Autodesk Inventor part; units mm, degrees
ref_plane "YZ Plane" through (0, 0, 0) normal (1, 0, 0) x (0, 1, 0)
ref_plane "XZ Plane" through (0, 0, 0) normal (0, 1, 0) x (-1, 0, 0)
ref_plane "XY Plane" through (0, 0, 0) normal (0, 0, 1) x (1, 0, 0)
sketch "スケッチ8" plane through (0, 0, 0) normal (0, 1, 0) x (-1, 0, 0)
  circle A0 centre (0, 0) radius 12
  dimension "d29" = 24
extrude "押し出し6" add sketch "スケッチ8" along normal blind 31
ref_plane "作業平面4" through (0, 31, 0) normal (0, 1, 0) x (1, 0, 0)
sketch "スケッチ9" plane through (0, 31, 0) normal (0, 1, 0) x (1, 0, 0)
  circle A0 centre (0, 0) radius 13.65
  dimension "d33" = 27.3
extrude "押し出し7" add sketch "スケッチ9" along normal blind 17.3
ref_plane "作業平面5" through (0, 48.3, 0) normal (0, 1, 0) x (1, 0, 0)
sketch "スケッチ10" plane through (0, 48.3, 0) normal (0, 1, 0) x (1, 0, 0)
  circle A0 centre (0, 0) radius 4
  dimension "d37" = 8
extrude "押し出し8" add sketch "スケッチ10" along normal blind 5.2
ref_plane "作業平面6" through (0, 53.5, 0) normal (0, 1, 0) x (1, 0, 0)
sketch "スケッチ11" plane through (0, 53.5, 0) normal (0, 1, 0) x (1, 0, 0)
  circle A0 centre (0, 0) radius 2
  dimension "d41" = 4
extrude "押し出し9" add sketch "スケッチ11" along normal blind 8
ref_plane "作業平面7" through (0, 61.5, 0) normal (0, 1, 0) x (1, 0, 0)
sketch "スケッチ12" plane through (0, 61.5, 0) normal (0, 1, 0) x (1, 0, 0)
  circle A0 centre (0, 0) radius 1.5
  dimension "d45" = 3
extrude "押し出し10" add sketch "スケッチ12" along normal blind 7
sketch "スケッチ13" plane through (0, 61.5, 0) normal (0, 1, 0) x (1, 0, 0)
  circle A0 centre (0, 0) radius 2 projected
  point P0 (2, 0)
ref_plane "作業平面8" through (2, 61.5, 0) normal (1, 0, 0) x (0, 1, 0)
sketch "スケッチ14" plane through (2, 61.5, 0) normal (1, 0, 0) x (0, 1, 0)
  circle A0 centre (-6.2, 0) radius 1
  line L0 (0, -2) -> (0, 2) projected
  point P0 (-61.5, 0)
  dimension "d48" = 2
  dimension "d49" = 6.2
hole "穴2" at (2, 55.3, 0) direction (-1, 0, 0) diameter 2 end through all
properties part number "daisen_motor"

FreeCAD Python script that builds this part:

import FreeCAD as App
import Part
import Sketcher

V = App.Vector
Q = App.Units.Quantity

doc = App.newDocument("Part")
params = doc.addObject("Spreadsheet::Sheet", "Params")
for row, (alias, value) in enumerate([
    ("sketch1_diameter", "24 mm"),
    ("pad1_length", "31 mm"),
    ("sketch2_diameter", "27.3 mm"),
    ("pad2_length", "17.3 mm"),
    ("sketch3_diameter", "8 mm"),
    ("pad3_length", "5.2 mm"),
    ("sketch4_diameter", "4 mm"),
    ("pad4_length", "8 mm"),
    ("sketch5_diameter", "3 mm"),
    ("pad5_length", "7 mm"),
    ("sketch6_diameter", "2 mm"),
    ("hole_diameter", "2 mm"),
], start=1):
    params.set(f"A{row}", alias)
    params.set(f"B{row}", "=" + value)
    params.setAlias(f"B{row}", alias)

body = doc.addObject("PartDesign::Body", "Body")

# Sketch on XZ plane
sketch1 = body.newObject("Sketcher::SketchObject", "Sketch")
sketch1.AttachmentSupport = (doc.getObject("XZ_Plane"), [""])
sketch1.MapMode = "FlatFace"
sketch1.addGeometry(Part.Circle(V(0, 0, 0), V(0, 0, 1), 12), False)
sketch1.addConstraint(Sketcher.Constraint("Coincident", 0, 3, -1, 1))
sketch1.addConstraint(Sketcher.Constraint("Diameter", 0, Q("24 mm")))
sketch1.setExpression("Constraints[1]", "Params.sketch1_diameter")
pad1 = body.newObject("PartDesign::Pad", "Pad")
pad1.Profile = sketch1
pad1.setExpression("Length", "Params.pad1_length")
pad1.Reversed = True

# Sketch on XZ plane
sketch2 = body.newObject("Sketcher::SketchObject", "Sketch001")
sketch2.AttachmentSupport = (doc.getObject("XZ_Plane"), [""])
sketch2.MapMode = "FlatFace"
sketch2.AttachmentOffset = App.Placement(V(0, 0, -31), App.Rotation())
sketch2.addGeometry(Part.Circle(V(0, 0, 0), V(0, 0, 1), 14), False)
sketch2.addConstraint(Sketcher.Constraint("Coincident", 0, 3, -1, 1))
sketch2.addConstraint(Sketcher.Constraint("Diameter", 0, Q("27.3 mm")))
sketch2.setExpression("Constraints[1]", "Params.sketch2_diameter")
pad2 = body.newObject("PartDesign::Pad", "Pad001")
pad2.Profile = sketch2
pad2.setExpression("Length", "Params.pad2_length")
pad2.Reversed = True

# Sketch on XZ plane
sketch3 = body.newObject("Sketcher::SketchObject", "Sketch002")
sketch3.AttachmentSupport = (doc.getObject("XZ_Plane"), [""])
sketch3.MapMode = "FlatFace"
sketch3.AttachmentOffset = App.Placement(V(0, 0, -48.3), App.Rotation())
sketch3.addGeometry(Part.Circle(V(0, 0, 0), V(0, 0, 1), 4), False)
sketch3.addConstraint(Sketcher.Constraint("Coincident", 0, 3, -1, 1))
sketch3.addConstraint(Sketcher.Constraint("Diameter", 0, Q("8 mm")))
sketch3.setExpression("Constraints[1]", "Params.sketch3_diameter")
pad3 = body.newObject("PartDesign::Pad", "Pad002")
pad3.Profile = sketch3
pad3.setExpression("Length", "Params.pad3_length")
pad3.Reversed = True

# Sketch on XZ plane
sketch4 = body.newObject("Sketcher::SketchObject", "Sketch003")
sketch4.AttachmentSupport = (doc.getObject("XZ_Plane"), [""])
sketch4.MapMode = "FlatFace"
sketch4.AttachmentOffset = App.Placement(V(0, 0, -53.5), App.Rotation())
sketch4.addGeometry(Part.Circle(V(0, 0, 0), V(0, 0, 1), 2), False)
sketch4.addConstraint(Sketcher.Constraint("Coincident", 0, 3, -1, 1))
sketch4.addConstraint(Sketcher.Constraint("Diameter", 0, Q("4 mm")))
sketch4.setExpression("Constraints[1]", "Params.sketch4_diameter")
pad4 = body.newObject("PartDesign::Pad", "Pad003")
pad4.Profile = sketch4
pad4.setExpression("Length", "Params.pad4_length")
pad4.Reversed = True

# Sketch on XZ plane
sketch5 = body.newObject("Sketcher::SketchObject", "Sketch004")
sketch5.AttachmentSupport = (doc.getObject("XZ_Plane"), [""])
sketch5.MapMode = "FlatFace"
sketch5.AttachmentOffset = App.Placement(V(0, 0, -61.5), App.Rotation())
sketch5.addGeometry(Part.Circle(V(0, 0, 0), V(0, 0, 1), 1.5), False)
sketch5.addConstraint(Sketcher.Constraint("Coincident", 0, 3, -1, 1))
sketch5.addConstraint(Sketcher.Constraint("Diameter", 0, Q("3 mm")))
sketch5.setExpression("Constraints[1]", "Params.sketch5_diameter")
pad5 = body.newObject("PartDesign::Pad", "Pad004")
pad5.Profile = sketch5
pad5.setExpression("Length", "Params.pad5_length")
pad5.Reversed = True

# Sketch on YZ plane
sketch6 = body.newObject("Sketcher::SketchObject", "Sketch005")
sketch6.AttachmentSupport = (doc.getObject("YZ_Plane"), [""])
sketch6.MapMode = "FlatFace"
sketch6.AttachmentOffset = App.Placement(V(0, 0, 2), App.Rotation())
sketch6.addGeometry(Part.Circle(V(55.3, 0, 0), V(0, 0, 1), 1), False)
sketch6.addConstraint(Sketcher.Constraint("PointOnObject", 0, 3, -1))
sketch6.addConstraint(Sketcher.Constraint("Diameter", 0, Q("2 mm")))
sketch6.addConstraint(Sketcher.Constraint("DistanceX", -1, 1, 0, 3, Q("55.3 mm")))
sketch6.setExpression("Constraints[1]", "Params.sketch6_diameter")
doc.recompute()
hole = body.newObject("PartDesign::Hole", "Hole")
hole.Profile = sketch6
hole.ThreadType = "None"
hole.setExpression("Diameter", "Params.hole_diameter")
hole.DepthType = "ThroughAll"

doc.recompute()
